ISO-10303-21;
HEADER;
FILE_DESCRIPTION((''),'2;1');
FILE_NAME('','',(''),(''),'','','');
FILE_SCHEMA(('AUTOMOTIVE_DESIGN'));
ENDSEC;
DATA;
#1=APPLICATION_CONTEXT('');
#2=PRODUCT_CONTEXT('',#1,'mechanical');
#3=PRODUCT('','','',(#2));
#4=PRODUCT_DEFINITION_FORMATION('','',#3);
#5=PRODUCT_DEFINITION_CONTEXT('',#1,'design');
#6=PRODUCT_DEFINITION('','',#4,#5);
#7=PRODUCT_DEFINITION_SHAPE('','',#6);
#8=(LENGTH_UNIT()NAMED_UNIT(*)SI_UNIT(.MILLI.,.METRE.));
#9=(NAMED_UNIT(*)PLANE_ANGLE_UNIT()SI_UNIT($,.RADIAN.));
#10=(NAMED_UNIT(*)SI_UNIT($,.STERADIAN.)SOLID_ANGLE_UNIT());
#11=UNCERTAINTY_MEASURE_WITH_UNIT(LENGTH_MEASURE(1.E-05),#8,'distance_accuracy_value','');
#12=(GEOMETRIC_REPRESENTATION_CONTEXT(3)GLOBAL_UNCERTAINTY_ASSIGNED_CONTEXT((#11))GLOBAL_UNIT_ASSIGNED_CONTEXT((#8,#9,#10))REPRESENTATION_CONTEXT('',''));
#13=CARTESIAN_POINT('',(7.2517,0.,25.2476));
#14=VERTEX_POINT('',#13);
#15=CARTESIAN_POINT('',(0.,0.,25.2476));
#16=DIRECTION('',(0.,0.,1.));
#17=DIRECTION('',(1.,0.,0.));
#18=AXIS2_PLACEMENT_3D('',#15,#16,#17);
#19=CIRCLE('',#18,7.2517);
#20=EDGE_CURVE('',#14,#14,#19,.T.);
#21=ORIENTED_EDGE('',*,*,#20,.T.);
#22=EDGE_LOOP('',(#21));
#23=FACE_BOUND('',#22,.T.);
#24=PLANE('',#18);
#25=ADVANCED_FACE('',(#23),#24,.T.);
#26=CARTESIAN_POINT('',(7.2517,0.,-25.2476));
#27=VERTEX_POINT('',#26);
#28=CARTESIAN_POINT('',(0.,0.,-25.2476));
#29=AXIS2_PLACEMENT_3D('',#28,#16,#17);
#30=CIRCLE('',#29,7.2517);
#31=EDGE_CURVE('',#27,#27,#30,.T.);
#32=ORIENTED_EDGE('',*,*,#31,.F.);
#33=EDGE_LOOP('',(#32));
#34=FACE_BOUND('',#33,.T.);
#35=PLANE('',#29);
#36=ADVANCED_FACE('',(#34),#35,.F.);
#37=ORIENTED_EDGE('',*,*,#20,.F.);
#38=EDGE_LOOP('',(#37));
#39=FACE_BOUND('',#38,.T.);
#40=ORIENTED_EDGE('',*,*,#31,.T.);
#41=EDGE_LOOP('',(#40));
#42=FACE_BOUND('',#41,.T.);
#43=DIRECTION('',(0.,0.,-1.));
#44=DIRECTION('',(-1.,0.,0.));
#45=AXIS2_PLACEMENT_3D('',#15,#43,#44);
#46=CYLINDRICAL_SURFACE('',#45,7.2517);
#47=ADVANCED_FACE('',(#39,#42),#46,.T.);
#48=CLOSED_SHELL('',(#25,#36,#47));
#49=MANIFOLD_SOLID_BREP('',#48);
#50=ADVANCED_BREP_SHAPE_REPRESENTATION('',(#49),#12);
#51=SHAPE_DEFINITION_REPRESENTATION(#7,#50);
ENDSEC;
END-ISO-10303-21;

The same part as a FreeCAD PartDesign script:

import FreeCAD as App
import Part
import Sketcher
Q = App.Units.Quantity

doc = App.newDocument("Part")
body = doc.addObject("PartDesign::Body", "Body")

sketch1 = body.newObject("Sketcher::SketchObject", "Sketch")
sketch1.AttachmentSupport = (doc.getObject("XY_Plane"), [""])
sketch1.MapMode = "FlatFace"
sketch1.addGeometry(Part.Circle(App.Vector(0, 0, 0), App.Vector(0, 0, 1), 7), False)
sketch1.addConstraint(Sketcher.Constraint("Coincident", 0, 3, -1, 1))
sketch1.addConstraint(Sketcher.Constraint("Diameter", 0, Q("0.571 in")))
pad1 = body.newObject("PartDesign::Pad", "Pad")
pad1.Profile = sketch1
pad1.Length = Q("1.988 in")
pad1.Midplane = True

doc.recompute()
